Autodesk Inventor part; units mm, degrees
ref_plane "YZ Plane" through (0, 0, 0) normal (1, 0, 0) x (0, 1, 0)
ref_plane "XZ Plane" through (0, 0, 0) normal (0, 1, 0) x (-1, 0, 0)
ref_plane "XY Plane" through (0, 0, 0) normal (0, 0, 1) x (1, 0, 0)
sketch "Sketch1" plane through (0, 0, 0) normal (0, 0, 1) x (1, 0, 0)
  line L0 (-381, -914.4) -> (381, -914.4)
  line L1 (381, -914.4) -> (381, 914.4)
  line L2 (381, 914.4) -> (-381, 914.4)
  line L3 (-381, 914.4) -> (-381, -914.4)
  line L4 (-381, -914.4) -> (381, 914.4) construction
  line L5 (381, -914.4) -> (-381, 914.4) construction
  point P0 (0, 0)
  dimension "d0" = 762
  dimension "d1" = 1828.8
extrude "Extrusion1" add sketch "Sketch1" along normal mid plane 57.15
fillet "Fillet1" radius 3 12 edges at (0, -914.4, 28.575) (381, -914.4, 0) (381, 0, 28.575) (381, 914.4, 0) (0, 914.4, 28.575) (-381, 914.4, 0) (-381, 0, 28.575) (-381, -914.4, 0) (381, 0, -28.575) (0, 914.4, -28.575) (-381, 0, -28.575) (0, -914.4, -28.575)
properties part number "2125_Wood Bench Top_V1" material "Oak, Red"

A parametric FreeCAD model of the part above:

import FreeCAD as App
import Part
import Sketcher
Q = App.Units.Quantity


def add_polygon(sketch, points):
    """Adds a closed chain of lines whose ends are joined by coincident constraints."""
    first, n = sketch.GeometryCount, len(points)
    for a, b in zip(points, points[1:] + points[:1]):
        sketch.addGeometry(Part.LineSegment(App.Vector(*a, 0), App.Vector(*b, 0)), False)
    for i in range(n):
        sketch.addConstraint(Sketcher.Constraint("Coincident", first + i, 2, first + (i + 1) % n, 1))

doc = App.newDocument("Part")
body = doc.addObject("PartDesign::Body", "Body")

# Sketch on XY plane
sketch1 = body.newObject("Sketcher::SketchObject", "Sketch")
sketch1.AttachmentSupport = (doc.getObject("XY_Plane"), [""])
sketch1.MapMode = "FlatFace"
add_polygon(sketch1, [(-381, 914), (-381, -914), (381, -914), (381, 914)])  # lines 0-3
sketch1.addConstraint([
    Sketcher.Constraint("Vertical", 0),
    Sketcher.Constraint("Horizontal", 1),
    Sketcher.Constraint("Vertical", 2),
    Sketcher.Constraint("Horizontal", 3),
    Sketcher.Constraint("Symmetric", 0, 2, 2, 2, -1, 1),
    Sketcher.Constraint("DistanceX", 1, 1, 1, 2, Q("30 in")),
    Sketcher.Constraint("DistanceY", 0, 2, 0, 1, Q("72 in")),
])
pad1 = body.newObject("PartDesign::Pad", "Pad")
pad1.Profile = sketch1
pad1.Length = Q("2.25 in")
pad1.Midplane = True
doc.recompute()

fillet = body.newObject("PartDesign::Fillet", "Fillet")
fillet.Base = (pad1, ["Edge1"])
fillet.UseAllEdges = True
fillet.Radius = Q("0.1181102 in")

doc.recompute()
